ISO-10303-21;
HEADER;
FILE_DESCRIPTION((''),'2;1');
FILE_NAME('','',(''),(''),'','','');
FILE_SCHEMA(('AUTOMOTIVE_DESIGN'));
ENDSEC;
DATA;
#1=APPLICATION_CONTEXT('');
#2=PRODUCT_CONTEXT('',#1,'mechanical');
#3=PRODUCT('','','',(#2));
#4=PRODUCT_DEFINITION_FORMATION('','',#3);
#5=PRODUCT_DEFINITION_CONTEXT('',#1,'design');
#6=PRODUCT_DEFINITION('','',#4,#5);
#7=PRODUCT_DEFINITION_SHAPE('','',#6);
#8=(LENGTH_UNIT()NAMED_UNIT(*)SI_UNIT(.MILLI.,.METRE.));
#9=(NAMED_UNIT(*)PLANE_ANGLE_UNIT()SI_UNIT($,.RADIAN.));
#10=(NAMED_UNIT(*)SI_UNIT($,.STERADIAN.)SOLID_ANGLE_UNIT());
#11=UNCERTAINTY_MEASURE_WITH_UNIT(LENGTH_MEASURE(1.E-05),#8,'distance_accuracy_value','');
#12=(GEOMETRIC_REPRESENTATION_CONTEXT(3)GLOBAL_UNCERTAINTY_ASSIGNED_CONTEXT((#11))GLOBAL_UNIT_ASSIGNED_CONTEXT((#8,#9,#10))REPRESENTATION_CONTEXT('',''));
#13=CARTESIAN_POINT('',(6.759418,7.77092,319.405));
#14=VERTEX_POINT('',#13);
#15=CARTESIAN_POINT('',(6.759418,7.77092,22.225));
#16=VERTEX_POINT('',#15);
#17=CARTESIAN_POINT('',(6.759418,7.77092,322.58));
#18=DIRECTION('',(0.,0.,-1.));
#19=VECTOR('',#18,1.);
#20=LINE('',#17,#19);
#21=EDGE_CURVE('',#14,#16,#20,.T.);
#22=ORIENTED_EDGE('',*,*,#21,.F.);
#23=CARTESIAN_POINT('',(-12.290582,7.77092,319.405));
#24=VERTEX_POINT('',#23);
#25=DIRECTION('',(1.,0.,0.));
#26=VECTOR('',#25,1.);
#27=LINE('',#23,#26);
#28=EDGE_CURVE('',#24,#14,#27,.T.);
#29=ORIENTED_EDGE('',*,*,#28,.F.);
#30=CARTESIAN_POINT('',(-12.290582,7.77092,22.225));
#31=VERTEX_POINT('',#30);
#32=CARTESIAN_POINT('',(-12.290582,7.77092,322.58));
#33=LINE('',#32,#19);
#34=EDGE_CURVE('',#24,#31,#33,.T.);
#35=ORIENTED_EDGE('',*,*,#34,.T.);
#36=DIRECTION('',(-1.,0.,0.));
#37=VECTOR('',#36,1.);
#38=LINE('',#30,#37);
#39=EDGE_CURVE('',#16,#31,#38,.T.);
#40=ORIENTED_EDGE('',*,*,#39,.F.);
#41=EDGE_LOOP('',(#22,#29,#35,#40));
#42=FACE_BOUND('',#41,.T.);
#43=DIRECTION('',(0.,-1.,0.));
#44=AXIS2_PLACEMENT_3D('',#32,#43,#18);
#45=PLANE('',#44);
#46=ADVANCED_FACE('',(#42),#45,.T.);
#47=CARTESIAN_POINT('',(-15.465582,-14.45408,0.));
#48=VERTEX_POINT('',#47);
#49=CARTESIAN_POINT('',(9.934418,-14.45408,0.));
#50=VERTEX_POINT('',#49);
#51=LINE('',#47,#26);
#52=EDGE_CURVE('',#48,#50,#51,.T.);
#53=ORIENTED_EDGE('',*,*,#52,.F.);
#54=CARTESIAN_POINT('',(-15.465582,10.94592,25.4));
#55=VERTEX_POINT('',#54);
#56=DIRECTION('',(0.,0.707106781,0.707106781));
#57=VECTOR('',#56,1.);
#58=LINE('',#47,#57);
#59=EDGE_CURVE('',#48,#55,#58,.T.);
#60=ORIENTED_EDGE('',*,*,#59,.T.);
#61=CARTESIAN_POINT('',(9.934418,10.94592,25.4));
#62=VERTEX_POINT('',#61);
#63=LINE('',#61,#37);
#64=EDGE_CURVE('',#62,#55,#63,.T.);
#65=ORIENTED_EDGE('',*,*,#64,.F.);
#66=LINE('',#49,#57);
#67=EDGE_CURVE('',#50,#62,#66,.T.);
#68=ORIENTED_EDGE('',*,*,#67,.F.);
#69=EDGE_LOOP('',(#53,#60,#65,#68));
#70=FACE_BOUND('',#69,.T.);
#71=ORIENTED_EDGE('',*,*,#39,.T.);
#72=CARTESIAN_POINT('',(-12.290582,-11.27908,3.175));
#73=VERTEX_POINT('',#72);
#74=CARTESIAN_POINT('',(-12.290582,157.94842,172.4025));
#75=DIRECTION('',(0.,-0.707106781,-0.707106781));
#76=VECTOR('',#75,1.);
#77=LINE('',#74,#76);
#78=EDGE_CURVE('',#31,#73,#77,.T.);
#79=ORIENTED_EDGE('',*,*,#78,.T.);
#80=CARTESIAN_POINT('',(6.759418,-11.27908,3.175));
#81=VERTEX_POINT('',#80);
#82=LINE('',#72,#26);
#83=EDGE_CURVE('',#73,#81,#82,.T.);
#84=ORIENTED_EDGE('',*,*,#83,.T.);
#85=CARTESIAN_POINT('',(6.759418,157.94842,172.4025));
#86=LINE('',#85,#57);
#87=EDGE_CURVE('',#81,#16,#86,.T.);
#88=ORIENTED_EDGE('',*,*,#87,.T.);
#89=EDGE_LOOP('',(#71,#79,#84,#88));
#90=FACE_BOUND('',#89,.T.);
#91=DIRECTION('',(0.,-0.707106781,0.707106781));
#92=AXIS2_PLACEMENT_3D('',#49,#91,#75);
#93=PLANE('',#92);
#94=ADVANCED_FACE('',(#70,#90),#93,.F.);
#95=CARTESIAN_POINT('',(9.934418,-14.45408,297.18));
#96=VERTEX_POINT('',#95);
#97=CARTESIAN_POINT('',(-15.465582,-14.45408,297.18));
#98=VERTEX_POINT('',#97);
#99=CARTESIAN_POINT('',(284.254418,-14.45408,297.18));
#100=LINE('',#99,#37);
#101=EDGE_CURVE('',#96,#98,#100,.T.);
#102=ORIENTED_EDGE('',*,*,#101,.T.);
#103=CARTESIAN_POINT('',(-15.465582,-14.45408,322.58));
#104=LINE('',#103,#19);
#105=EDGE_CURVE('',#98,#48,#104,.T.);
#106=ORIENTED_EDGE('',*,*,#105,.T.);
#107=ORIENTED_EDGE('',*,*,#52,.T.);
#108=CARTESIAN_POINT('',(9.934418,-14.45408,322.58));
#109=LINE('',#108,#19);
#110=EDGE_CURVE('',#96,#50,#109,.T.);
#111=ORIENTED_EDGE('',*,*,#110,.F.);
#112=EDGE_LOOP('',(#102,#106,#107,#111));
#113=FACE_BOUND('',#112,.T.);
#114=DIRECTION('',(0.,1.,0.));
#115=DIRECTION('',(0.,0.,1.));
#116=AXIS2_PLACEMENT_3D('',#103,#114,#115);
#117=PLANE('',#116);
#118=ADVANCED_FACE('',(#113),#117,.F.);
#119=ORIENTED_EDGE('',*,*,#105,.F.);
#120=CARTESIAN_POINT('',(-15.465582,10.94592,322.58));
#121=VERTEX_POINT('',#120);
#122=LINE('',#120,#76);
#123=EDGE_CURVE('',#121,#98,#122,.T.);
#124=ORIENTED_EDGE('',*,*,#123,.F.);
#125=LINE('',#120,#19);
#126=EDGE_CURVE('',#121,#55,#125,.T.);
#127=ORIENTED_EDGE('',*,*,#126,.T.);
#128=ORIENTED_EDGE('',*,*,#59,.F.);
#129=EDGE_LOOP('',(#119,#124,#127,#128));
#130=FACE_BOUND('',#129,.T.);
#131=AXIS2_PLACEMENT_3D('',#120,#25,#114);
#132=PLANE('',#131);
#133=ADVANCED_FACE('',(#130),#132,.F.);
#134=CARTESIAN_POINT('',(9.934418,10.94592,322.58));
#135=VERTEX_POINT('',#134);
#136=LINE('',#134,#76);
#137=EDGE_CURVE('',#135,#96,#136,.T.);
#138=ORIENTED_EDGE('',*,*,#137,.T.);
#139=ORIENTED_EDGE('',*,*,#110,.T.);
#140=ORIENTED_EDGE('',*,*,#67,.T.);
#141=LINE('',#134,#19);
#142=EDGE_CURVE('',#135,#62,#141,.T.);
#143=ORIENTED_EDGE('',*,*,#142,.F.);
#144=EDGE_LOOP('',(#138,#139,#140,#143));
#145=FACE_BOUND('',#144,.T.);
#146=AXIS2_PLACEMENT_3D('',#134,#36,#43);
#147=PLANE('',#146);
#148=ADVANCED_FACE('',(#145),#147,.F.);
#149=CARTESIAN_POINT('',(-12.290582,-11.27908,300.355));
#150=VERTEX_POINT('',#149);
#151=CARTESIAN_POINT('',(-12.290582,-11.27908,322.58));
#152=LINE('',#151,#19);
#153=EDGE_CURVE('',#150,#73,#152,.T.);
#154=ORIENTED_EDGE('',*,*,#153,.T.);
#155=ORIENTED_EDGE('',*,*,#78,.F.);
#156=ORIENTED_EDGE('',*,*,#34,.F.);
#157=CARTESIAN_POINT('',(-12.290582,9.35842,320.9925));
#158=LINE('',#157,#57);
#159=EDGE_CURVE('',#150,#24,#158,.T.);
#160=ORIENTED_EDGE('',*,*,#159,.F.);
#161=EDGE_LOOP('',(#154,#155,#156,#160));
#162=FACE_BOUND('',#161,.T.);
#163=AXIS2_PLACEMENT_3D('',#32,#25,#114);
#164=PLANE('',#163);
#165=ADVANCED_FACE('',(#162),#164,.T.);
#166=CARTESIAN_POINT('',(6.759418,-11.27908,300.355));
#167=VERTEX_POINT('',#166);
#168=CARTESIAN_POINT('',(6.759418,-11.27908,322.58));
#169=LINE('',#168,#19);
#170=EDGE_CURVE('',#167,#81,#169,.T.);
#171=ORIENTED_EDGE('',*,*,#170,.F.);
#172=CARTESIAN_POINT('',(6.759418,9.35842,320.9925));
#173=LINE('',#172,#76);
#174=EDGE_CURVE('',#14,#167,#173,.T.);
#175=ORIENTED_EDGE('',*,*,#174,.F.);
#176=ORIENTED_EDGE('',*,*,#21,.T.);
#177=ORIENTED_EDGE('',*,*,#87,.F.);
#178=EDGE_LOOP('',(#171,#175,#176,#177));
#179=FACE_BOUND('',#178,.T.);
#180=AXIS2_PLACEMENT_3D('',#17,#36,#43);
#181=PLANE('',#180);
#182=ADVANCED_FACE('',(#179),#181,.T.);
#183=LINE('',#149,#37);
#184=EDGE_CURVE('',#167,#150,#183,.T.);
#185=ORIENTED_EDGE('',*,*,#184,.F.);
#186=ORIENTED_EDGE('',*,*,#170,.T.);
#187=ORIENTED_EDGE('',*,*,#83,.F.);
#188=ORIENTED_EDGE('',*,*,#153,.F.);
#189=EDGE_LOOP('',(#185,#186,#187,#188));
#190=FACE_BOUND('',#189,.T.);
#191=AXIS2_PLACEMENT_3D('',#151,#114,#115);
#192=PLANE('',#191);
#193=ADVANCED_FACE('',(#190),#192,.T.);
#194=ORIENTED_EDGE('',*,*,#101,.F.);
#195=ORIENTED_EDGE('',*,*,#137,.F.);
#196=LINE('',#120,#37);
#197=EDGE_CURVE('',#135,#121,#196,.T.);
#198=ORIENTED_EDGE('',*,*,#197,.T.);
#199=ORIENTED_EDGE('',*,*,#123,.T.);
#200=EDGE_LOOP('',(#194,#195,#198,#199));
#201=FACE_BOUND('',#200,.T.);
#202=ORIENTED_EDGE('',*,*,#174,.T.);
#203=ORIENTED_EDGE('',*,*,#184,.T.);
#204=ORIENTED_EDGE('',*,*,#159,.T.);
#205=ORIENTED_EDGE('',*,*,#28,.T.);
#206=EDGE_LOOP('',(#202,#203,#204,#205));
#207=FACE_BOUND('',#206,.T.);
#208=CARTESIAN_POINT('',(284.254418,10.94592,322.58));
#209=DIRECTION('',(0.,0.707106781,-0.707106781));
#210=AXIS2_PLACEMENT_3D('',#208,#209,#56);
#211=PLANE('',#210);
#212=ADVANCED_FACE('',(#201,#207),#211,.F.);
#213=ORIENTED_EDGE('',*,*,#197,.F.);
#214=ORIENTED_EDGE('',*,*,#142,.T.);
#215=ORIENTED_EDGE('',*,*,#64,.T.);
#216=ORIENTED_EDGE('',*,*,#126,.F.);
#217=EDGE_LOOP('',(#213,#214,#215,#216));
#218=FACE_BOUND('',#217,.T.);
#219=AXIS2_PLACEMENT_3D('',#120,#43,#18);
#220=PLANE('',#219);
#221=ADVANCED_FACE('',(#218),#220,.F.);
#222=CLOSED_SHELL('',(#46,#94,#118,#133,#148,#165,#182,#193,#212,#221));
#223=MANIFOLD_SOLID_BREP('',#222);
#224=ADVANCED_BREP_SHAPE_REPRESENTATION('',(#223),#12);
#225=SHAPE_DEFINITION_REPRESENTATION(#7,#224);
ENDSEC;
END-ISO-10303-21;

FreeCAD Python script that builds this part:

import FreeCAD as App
import Part
import Sketcher
Q = App.Units.Quantity

doc = App.newDocument("Part")
params = doc.addObject("Spreadsheet::Sheet", "Params")
for row, (alias, value) in enumerate([
    ("sketch1_width", "1 in"),
    ("sketch1_width2", "0.75 in"),
    ("pad1_length", "12.7 in"),
    ("sketch2_width", "1 in"),
    ("pocket1_length", "11.8 in"),
    ("sketch3_width", "1 in"),
    ("pocket2_length", "1 in"),
], start=1):
    params.set(f"A{row}", alias)
    params.set(f"B{row}", "=" + value)
    params.setAlias(f"B{row}", alias)

body = doc.addObject("PartDesign::Body", "Body")

# Sketch on XY plane
sketch1 = body.newObject("Sketcher::SketchObject", "Sketch")
sketch1.AttachmentSupport = (doc.getObject("XY_Plane"), [""])
sketch1.MapMode = "FlatFace"
sketch1.addGeometry(Part.LineSegment(App.Vector(-15, 11, 0), App.Vector(-15, -14, 0)), False)
sketch1.addGeometry(Part.LineSegment(App.Vector(-15, -14, 0), App.Vector(10, -14, 0)), False)
sketch1.addGeometry(Part.LineSegment(App.Vector(10, -14, 0), App.Vector(10, 11, 0)), False)
sketch1.addGeometry(Part.LineSegment(App.Vector(10, 11, 0), App.Vector(-15, 11, 0)), False)
sketch1.addGeometry(Part.LineSegment(App.Vector(7, -11, 0), App.Vector(-12, -11, 0)), False)
sketch1.addGeometry(Part.LineSegment(App.Vector(-12, -11, 0), App.Vector(-12, 8, 0)), False)
sketch1.addGeometry(Part.LineSegment(App.Vector(-12, 8, 0), App.Vector(7, 8, 0)), False)
sketch1.addGeometry(Part.LineSegment(App.Vector(7, 8, 0), App.Vector(7, -11, 0)), False)
sketch1.addConstraint(Sketcher.Constraint("Coincident", 0, 2, 1, 1))
sketch1.addConstraint(Sketcher.Constraint("Coincident", 1, 2, 2, 1))
sketch1.addConstraint(Sketcher.Constraint("Coincident", 2, 2, 3, 1))
sketch1.addConstraint(Sketcher.Constraint("Coincident", 3, 2, 0, 1))
sketch1.addConstraint(Sketcher.Constraint("Coincident", 4, 2, 5, 1))
sketch1.addConstraint(Sketcher.Constraint("Coincident", 5, 2, 6, 1))
sketch1.addConstraint(Sketcher.Constraint("Coincident", 6, 2, 7, 1))
sketch1.addConstraint(Sketcher.Constraint("Coincident", 7, 2, 4, 1))
sketch1.addConstraint(Sketcher.Constraint("Vertical", 0))
sketch1.addConstraint(Sketcher.Constraint("Horizontal", 1))
sketch1.addConstraint(Sketcher.Constraint("Vertical", 2))
sketch1.addConstraint(Sketcher.Constraint("Horizontal", 3))
sketch1.addConstraint(Sketcher.Constraint("Horizontal", 4))
sketch1.addConstraint(Sketcher.Constraint("Vertical", 5))
sketch1.addConstraint(Sketcher.Constraint("Horizontal", 6))
sketch1.addConstraint(Sketcher.Constraint("Vertical", 7))
sketch1.addConstraint(Sketcher.Constraint("Equal", 3, 0))
sketch1.addConstraint(Sketcher.Constraint("Equal", 6, 5))
sketch1.addConstraint(Sketcher.Constraint("DistanceX", 1, 1, 1, 2, Q("1 in")))
sketch1.addConstraint(Sketcher.Constraint("DistanceX", 4, 2, 4, 1, Q("0.75 in")))
sketch1.addConstraint(Sketcher.Constraint("DistanceX", 0, 2, 4, 2, Q("0.125 in")))
sketch1.addConstraint(Sketcher.Constraint("DistanceY", 0, 2, 4, 2, Q("0.125 in")))
sketch1.addConstraint(Sketcher.Constraint("DistanceX", 0, 2, -1, 1, 15.465582))
sketch1.addConstraint(Sketcher.Constraint("DistanceY", 0, 2, -1, 1, 14.45408))
sketch1.setExpression("Constraints[18]", "Params.sketch1_width")
sketch1.setExpression("Constraints[19]", "Params.sketch1_width2")
pad1 = body.newObject("PartDesign::Pad", "Pad")
pad1.Profile = sketch1
pad1.setExpression("Length", "Params.pad1_length")

# Sketch on YZ plane
sketch2 = body.newObject("Sketcher::SketchObject", "Sketch001")
sketch2.AttachmentSupport = (doc.getObject("YZ_Plane"), [""])
sketch2.MapMode = "FlatFace"
sketch2.AttachmentOffset = App.Placement(App.Vector(0, 0, -15.465582), App.Rotation())
sketch2.addGeometry(Part.LineSegment(App.Vector(11, 323, 0), App.Vector(-14, 297, 0)), False)
sketch2.addGeometry(Part.LineSegment(App.Vector(-14, 297, 0), App.Vector(-14, 323, 0)), False)
sketch2.addGeometry(Part.LineSegment(App.Vector(-14, 323, 0), App.Vector(11, 323, 0)), False)
sketch2.addConstraint(Sketcher.Constraint("Coincident", 0, 2, 1, 1))
sketch2.addConstraint(Sketcher.Constraint("Coincident", 1, 2, 2, 1))
sketch2.addConstraint(Sketcher.Constraint("Coincident", 2, 2, 0, 1))
sketch2.addConstraint(Sketcher.Constraint("Vertical", 1))
sketch2.addConstraint(Sketcher.Constraint("Horizontal", 2))
sketch2.addConstraint(Sketcher.Constraint("Equal", 2, 1))
sketch2.addConstraint(Sketcher.Constraint("DistanceX", 2, 1, 2, 2, Q("1 in")))
sketch2.addConstraint(Sketcher.Constraint("DistanceY", -1, 1, 0, 2, Q("11.7 in")))
sketch2.addConstraint(Sketcher.Constraint("DistanceX", 0, 2, -1, 1, 14.45408))
sketch2.setExpression("Constraints[6]", "Params.sketch2_width")
pocket1 = body.newObject("PartDesign::Pocket", "Pocket")
pocket1.Profile = sketch2
pocket1.setExpression("Length", "Params.pocket1_length")
pocket1.Reversed = True

# Sketch on YZ plane
sketch3 = body.newObject("Sketcher::SketchObject", "Sketch002")
sketch3.AttachmentSupport = (doc.getObject("YZ_Plane"), [""])
sketch3.MapMode = "FlatFace"
sketch3.AttachmentOffset = App.Placement(App.Vector(0, 0, -15.465582), App.Rotation())
sketch3.addGeometry(Part.LineSegment(App.Vector(-14, 0, 0), App.Vector(11, 25, 0)), False)
sketch3.addGeometry(Part.LineSegment(App.Vector(11, 25, 0), App.Vector(11, 0, 0)), False)
sketch3.addGeometry(Part.LineSegment(App.Vector(11, 0, 0), App.Vector(-14, 0, 0)), False)
sketch3.addConstraint(Sketcher.Constraint("Coincident", 0, 2, 1, 1))
sketch3.addConstraint(Sketcher.Constraint("Coincident", 1, 2, 2, 1))
sketch3.addConstraint(Sketcher.Constraint("Coincident", 2, 2, 0, 1))
sketch3.addConstraint(Sketcher.Constraint("Vertical", 1))
sketch3.addConstraint(Sketcher.Constraint("Horizontal", 2))
sketch3.addConstraint(Sketcher.Constraint("PointOnObject", 1, 2, -1))
sketch3.addConstraint(Sketcher.Constraint("Equal", 2, 1))
sketch3.addConstraint(Sketcher.Constraint("DistanceX", 2, 2, 2, 1, Q("1 in")))
sketch3.addConstraint(Sketcher.Constraint("DistanceX", -1, 1, 0, 2, 10.94592))
sketch3.setExpression("Constraints[7]", "Params.sketch3_width")
pocket2 = body.newObject("PartDesign::Pocket", "Pocket001")
pocket2.Profile = sketch3
pocket2.setExpression("Length", "Params.pocket2_length")
pocket2.Reversed = True

doc.recompute()
